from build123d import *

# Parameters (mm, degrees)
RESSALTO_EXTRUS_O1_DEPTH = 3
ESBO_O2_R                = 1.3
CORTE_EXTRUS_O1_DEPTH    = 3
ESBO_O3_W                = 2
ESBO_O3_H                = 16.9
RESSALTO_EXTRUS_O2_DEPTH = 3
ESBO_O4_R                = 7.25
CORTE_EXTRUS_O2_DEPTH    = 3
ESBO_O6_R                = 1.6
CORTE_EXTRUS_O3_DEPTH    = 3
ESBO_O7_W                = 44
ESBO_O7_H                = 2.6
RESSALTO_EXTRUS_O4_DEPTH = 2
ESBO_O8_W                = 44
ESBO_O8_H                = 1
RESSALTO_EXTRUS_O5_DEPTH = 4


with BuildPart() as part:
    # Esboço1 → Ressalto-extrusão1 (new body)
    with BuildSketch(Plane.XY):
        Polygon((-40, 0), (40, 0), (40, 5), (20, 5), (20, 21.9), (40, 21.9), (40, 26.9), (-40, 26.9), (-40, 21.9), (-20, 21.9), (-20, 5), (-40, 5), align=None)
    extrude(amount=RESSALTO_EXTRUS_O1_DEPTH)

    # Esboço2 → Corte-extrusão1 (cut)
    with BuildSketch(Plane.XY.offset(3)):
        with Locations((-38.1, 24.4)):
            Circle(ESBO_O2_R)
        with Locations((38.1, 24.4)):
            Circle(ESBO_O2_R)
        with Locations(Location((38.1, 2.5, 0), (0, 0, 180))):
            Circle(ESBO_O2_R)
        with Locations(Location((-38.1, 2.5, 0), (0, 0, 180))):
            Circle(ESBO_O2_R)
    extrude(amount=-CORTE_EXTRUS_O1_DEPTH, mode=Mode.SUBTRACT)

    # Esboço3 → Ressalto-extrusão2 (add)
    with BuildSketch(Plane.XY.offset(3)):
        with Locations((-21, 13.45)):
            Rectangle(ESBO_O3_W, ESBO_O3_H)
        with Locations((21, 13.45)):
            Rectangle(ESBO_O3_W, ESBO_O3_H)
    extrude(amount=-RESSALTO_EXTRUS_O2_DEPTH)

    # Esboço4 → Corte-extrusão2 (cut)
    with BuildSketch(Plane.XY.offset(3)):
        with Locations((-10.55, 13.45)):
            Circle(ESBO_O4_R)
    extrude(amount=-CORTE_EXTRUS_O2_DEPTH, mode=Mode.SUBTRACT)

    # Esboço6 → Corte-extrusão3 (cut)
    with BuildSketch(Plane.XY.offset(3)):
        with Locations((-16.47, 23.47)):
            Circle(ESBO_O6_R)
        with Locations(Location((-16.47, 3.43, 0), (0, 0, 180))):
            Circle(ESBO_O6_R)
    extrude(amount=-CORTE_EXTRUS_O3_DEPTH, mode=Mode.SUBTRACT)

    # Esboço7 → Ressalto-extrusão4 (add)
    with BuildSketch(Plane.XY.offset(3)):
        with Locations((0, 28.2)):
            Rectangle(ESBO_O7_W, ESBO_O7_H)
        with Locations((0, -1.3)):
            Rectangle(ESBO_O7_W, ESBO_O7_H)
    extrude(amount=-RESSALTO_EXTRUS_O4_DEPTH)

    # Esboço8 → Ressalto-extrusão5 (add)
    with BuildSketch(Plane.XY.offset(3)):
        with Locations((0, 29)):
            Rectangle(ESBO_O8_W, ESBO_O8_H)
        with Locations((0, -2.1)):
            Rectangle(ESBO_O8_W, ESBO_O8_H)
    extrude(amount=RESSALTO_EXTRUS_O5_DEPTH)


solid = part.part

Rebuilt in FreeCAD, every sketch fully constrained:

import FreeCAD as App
import Part
import Sketcher
Q = App.Units.Quantity

doc = App.newDocument("Part")
body = doc.addObject("PartDesign::Body", "Body")

sketch1 = doc.addObject("Sketcher::SketchObject", "Sketch")
body.addObject(sketch1)
sketch1.AttachmentSupport = (doc.XY_Plane, [""])
sketch1.MapMode = "FlatFace"
sketch1.addGeometry(Part.LineSegment(App.Vector(-40, 0, 0), App.Vector(40, 0, 0)), False)
sketch1.addGeometry(Part.LineSegment(App.Vector(40, 0, 0), App.Vector(40, 5, 0)), False)
sketch1.addGeometry(Part.LineSegment(App.Vector(40, 5, 0), App.Vector(20, 5, 0)), False)
sketch1.addGeometry(Part.LineSegment(App.Vector(20, 5, 0), App.Vector(20, 21.9, 0)), False)
sketch1.addGeometry(Part.LineSegment(App.Vector(20, 21.9, 0), App.Vector(40, 21.9, 0)), False)
sketch1.addGeometry(Part.LineSegment(App.Vector(40, 21.9, 0), App.Vector(40, 26.9, 0)), False)
sketch1.addGeometry(Part.LineSegment(App.Vector(40, 26.9, 0), App.Vector(-40, 26.9, 0)), False)
sketch1.addGeometry(Part.LineSegment(App.Vector(-40, 26.9, 0), App.Vector(-40, 21.9, 0)), False)
sketch1.addGeometry(Part.LineSegment(App.Vector(-40, 21.9, 0), App.Vector(-20, 21.9, 0)), False)
sketch1.addGeometry(Part.LineSegment(App.Vector(-20, 21.9, 0), App.Vector(-20, 5, 0)), False)
sketch1.addGeometry(Part.LineSegment(App.Vector(-20, 5, 0), App.Vector(-40, 5, 0)), False)
sketch1.addGeometry(Part.LineSegment(App.Vector(-40, 5, 0), App.Vector(-40, 0, 0)), False)
sketch1.addConstraint(Sketcher.Constraint("Coincident", 0, 2, 1, 1))
sketch1.addConstraint(Sketcher.Constraint("Coincident", 1, 2, 2, 1))
sketch1.addConstraint(Sketcher.Constraint("Coincident", 2, 2, 3, 1))
sketch1.addConstraint(Sketcher.Constraint("Coincident", 3, 2, 4, 1))
sketch1.addConstraint(Sketcher.Constraint("Coincident", 4, 2, 5, 1))
sketch1.addConstraint(Sketcher.Constraint("Coincident", 5, 2, 6, 1))
sketch1.addConstraint(Sketcher.Constraint("Coincident", 6, 2, 7, 1))
sketch1.addConstraint(Sketcher.Constraint("Coincident", 7, 2, 8, 1))
sketch1.addConstraint(Sketcher.Constraint("Coincident", 8, 2, 9, 1))
sketch1.addConstraint(Sketcher.Constraint("Coincident", 9, 2, 10, 1))
sketch1.addConstraint(Sketcher.Constraint("Coincident", 10, 2, 11, 1))
sketch1.addConstraint(Sketcher.Constraint("Coincident", 11, 2, 0, 1))
sketch1.addConstraint(Sketcher.Constraint("Horizontal", 0))
sketch1.addConstraint(Sketcher.Constraint("Vertical", 1))
sketch1.addConstraint(Sketcher.Constraint("Horizontal", 2))
sketch1.addConstraint(Sketcher.Constraint("Vertical", 3))
sketch1.addConstraint(Sketcher.Constraint("Horizontal", 4))
sketch1.addConstraint(Sketcher.Constraint("Vertical", 5))
sketch1.addConstraint(Sketcher.Constraint("Horizontal", 6))
sketch1.addConstraint(Sketcher.Constraint("Vertical", 7))
sketch1.addConstraint(Sketcher.Constraint("Horizontal", 8))
sketch1.addConstraint(Sketcher.Constraint("Vertical", 9))
sketch1.addConstraint(Sketcher.Constraint("Horizontal", 10))
sketch1.addConstraint(Sketcher.Constraint("Vertical", 11))
sketch1.addConstraint(Sketcher.Constraint("Symmetric", 0, 2, 11, 2, -1, 1))
sketch1.addConstraint(Sketcher.Constraint("Symmetric", 4, 2, 7, 2, -2))
sketch1.addConstraint(Sketcher.Constraint("Symmetric", 2, 2, 9, 2, -2))
sketch1.addConstraint(Sketcher.Constraint("Vertical", 1, 2, 4, 2))
sketch1.addConstraint(Sketcher.Constraint("Equal", 1, 5))
sketch1.addConstraint(Sketcher.Constraint("DistanceX", 0, 1, 0, 2, Q("80 mm")))
sketch1.addConstraint(Sketcher.Constraint("DistanceX", 2, 2, 2, 1, Q("20 mm")))
sketch1.addConstraint(Sketcher.Constraint("DistanceY", 1, 1, 1, 2, Q("5 mm")))
sketch1.addConstraint(Sketcher.Constraint("DistanceY", 3, 1, 3, 2, Q("16.9 mm")))
pad1 = doc.addObject("PartDesign::Pad", "Pad")
body.addObject(pad1)
pad1.Profile = sketch1
pad1.Length = 3

sketch2 = doc.addObject("Sketcher::SketchObject", "Sketch001")
body.addObject(sketch2)
sketch2.AttachmentSupport = (doc.XY_Plane, [""])
sketch2.MapMode = "FlatFace"
sketch2.AttachmentOffset = App.Placement(App.Vector(0, 0, 3), App.Rotation())
sketch2.addGeometry(Part.Circle(App.Vector(-38.1, 24.4, 0), App.Vector(0, 0, 1), 1.3), False)
sketch2.addGeometry(Part.Circle(App.Vector(38.1, 24.4, 0), App.Vector(0, 0, 1), 1.3), False)
sketch2.addGeometry(Part.Circle(App.Vector(38.1, 2.5, 0), App.Vector(0, 0, 1), 1.3), False)
sketch2.addGeometry(Part.Circle(App.Vector(-38.1, 2.5, 0), App.Vector(0, 0, 1), 1.3), False)
sketch2.addConstraint(Sketcher.Constraint("Equal", 0, 1))
sketch2.addConstraint(Sketcher.Constraint("Equal", 1, 2))
sketch2.addConstraint(Sketcher.Constraint("Equal", 2, 3))
sketch2.addConstraint(Sketcher.Constraint("Symmetric", 0, 3, 1, 3, -2))
sketch2.addConstraint(Sketcher.Constraint("Symmetric", 2, 3, 3, 3, -2))
sketch2.addConstraint(Sketcher.Constraint("Vertical", 1, 3, 2, 3))
sketch2.addConstraint(Sketcher.Constraint("Diameter", 0, Q("2.6 mm")))
sketch2.addConstraint(Sketcher.Constraint("DistanceX", 0, 3, -1, 1, Q("38.1 mm")))
sketch2.addConstraint(Sketcher.Constraint("DistanceY", -1, 1, 0, 3, Q("24.4 mm")))
sketch2.addConstraint(Sketcher.Constraint("DistanceY", -1, 1, 2, 3, Q("2.5 mm")))
pocket1 = doc.addObject("PartDesign::Pocket", "Pocket")
body.addObject(pocket1)
pocket1.Profile = sketch2
pocket1.Length = 3

sketch3 = doc.addObject("Sketcher::SketchObject", "Sketch002")
body.addObject(sketch3)
sketch3.AttachmentSupport = (doc.XY_Plane, [""])
sketch3.MapMode = "FlatFace"
sketch3.AttachmentOffset = App.Placement(App.Vector(0, 0, 3), App.Rotation())
sketch3.addGeometry(Part.LineSegment(App.Vector(-22, 21.9, 0), App.Vector(-22, 5, 0)), False)
sketch3.addGeometry(Part.LineSegment(App.Vector(-22, 5, 0), App.Vector(-20, 5, 0)), False)
sketch3.addGeometry(Part.LineSegment(App.Vector(-20, 5, 0), App.Vector(-20, 21.9, 0)), False)
sketch3.addGeometry(Part.LineSegment(App.Vector(-20, 21.9, 0), App.Vector(-22, 21.9, 0)), False)
sketch3.addGeometry(Part.LineSegment(App.Vector(20, 21.9, 0), App.Vector(20, 5, 0)), False)
sketch3.addGeometry(Part.LineSegment(App.Vector(20, 5, 0), App.Vector(22, 5, 0)), False)
sketch3.addGeometry(Part.LineSegment(App.Vector(22, 5, 0), App.Vector(22, 21.9, 0)), False)
sketch3.addGeometry(Part.LineSegment(App.Vector(22, 21.9, 0), App.Vector(20, 21.9, 0)), False)
sketch3.addConstraint(Sketcher.Constraint("Coincident", 0, 2, 1, 1))
sketch3.addConstraint(Sketcher.Constraint("Coincident", 1, 2, 2, 1))
sketch3.addConstraint(Sketcher.Constraint("Coincident", 2, 2, 3, 1))
sketch3.addConstraint(Sketcher.Constraint("Coincident", 3, 2, 0, 1))
sketch3.addConstraint(Sketcher.Constraint("Coincident", 4, 2, 5, 1))
sketch3.addConstraint(Sketcher.Constraint("Coincident", 5, 2, 6, 1))
sketch3.addConstraint(Sketcher.Constraint("Coincident", 6, 2, 7, 1))
sketch3.addConstraint(Sketcher.Constraint("Coincident", 7, 2, 4, 1))
sketch3.addConstraint(Sketcher.Constraint("Vertical", 0))
sketch3.addConstraint(Sketcher.Constraint("Horizontal", 1))
sketch3.addConstraint(Sketcher.Constraint("Vertical", 2))
sketch3.addConstraint(Sketcher.Constraint("Horizontal", 3))
sketch3.addConstraint(Sketcher.Constraint("Vertical", 4))
sketch3.addConstraint(Sketcher.Constraint("Horizontal", 5))
sketch3.addConstraint(Sketcher.Constraint("Vertical", 6))
sketch3.addConstraint(Sketcher.Constraint("Horizontal", 7))
sketch3.addConstraint(Sketcher.Constraint("Symmetric", 1, 2, 4, 2, -2))
sketch3.addConstraint(Sketcher.Constraint("Symmetric", 3, 2, 6, 2, -2))
sketch3.addConstraint(Sketcher.Constraint("DistanceX", 1, 1, 1, 2, Q("2 mm")))
sketch3.addConstraint(Sketcher.Constraint("DistanceY", 0, 2, 0, 1, Q("16.9 mm")))
sketch3.addConstraint(Sketcher.Constraint("DistanceX", 0, 2, -1, 1, Q("22 mm")))
sketch3.addConstraint(Sketcher.Constraint("DistanceY", -1, 1, 0, 2, Q("5 mm")))
pad2 = doc.addObject("PartDesign::Pad", "Pad001")
body.addObject(pad2)
pad2.Profile = sketch3
pad2.Length = 3
pad2.Reversed = True

sketch4 = doc.addObject("Sketcher::SketchObject", "Sketch003")
body.addObject(sketch4)
sketch4.AttachmentSupport = (doc.XY_Plane, [""])
sketch4.MapMode = "FlatFace"
sketch4.AttachmentOffset = App.Placement(App.Vector(0, 0, 3), App.Rotation())
sketch4.addGeometry(Part.Circle(App.Vector(-10.55, 13.45, 0), App.Vector(0, 0, 1), 7.25), False)
sketch4.addConstraint(Sketcher.Constraint("Diameter", 0, Q("14.5 mm")))
sketch4.addConstraint(Sketcher.Constraint("DistanceX", 0, 3, -1, 1, Q("10.55 mm")))
sketch4.addConstraint(Sketcher.Constraint("DistanceY", -1, 1, 0, 3, Q("13.45 mm")))
pocket2 = doc.addObject("PartDesign::Pocket", "Pocket001")
body.addObject(pocket2)
pocket2.Profile = sketch4
pocket2.Length = 3

sketch5 = doc.addObject("Sketcher::SketchObject", "Sketch004")
body.addObject(sketch5)
sketch5.AttachmentSupport = (doc.XY_Plane, [""])
sketch5.MapMode = "FlatFace"
sketch5.AttachmentOffset = App.Placement(App.Vector(0, 0, 3), App.Rotation())
sketch5.addGeometry(Part.Circle(App.Vector(-16.47, 23.47, 0), App.Vector(0, 0, 1), 1.6), False)
sketch5.addGeometry(Part.Circle(App.Vector(-16.47, 3.43, 0), App.Vector(0, 0, 1), 1.6), False)
sketch5.addConstraint(Sketcher.Constraint("Equal", 0, 1))
sketch5.addConstraint(Sketcher.Constraint("Vertical", 0, 3, 1, 3))
sketch5.addConstraint(Sketcher.Constraint("Diameter", 0, Q("3.2 mm")))
sketch5.addConstraint(Sketcher.Constraint("DistanceX", 0, 3, -1, 1, Q("16.47 mm")))
sketch5.addConstraint(Sketcher.Constraint("DistanceY", -1, 1, 0, 3, Q("23.47 mm")))
sketch5.addConstraint(Sketcher.Constraint("DistanceY", -1, 1, 1, 3, Q("3.43 mm")))
pocket3 = doc.addObject("PartDesign::Pocket", "Pocket002")
body.addObject(pocket3)
pocket3.Profile = sketch5
pocket3.Length = 3

sketch6 = doc.addObject("Sketcher::SketchObject", "Sketch005")
body.addObject(sketch6)
sketch6.AttachmentSupport = (doc.XY_Plane, [""])
sketch6.MapMode = "FlatFace"
sketch6.AttachmentOffset = App.Placement(App.Vector(0, 0, 3), App.Rotation())
sketch6.addGeometry(Part.LineSegment(App.Vector(-22, 29.5, 0), App.Vector(-22, 26.9, 0)), False)
sketch6.addGeometry(Part.LineSegment(App.Vector(-22, 26.9, 0), App.Vector(22, 26.9, 0)), False)
sketch6.addGeometry(Part.LineSegment(App.Vector(22, 26.9, 0), App.Vector(22, 29.5, 0)), False)
sketch6.addGeometry(Part.LineSegment(App.Vector(22, 29.5, 0), App.Vector(-22, 29.5, 0)), False)
sketch6.addGeometry(Part.LineSegment(App.Vector(-22, 0, 0), App.Vector(-22, -2.6, 0)), False)
sketch6.addGeometry(Part.LineSegment(App.Vector(-22, -2.6, 0), App.Vector(22, -2.6, 0)), False)
sketch6.addGeometry(Part.LineSegment(App.Vector(22, -2.6, 0), App.Vector(22, 0, 0)), False)
sketch6.addGeometry(Part.LineSegment(App.Vector(22, 0, 0), App.Vector(-22, 0, 0)), False)
sketch6.addConstraint(Sketcher.Constraint("Coincident", 0, 2, 1, 1))
sketch6.addConstraint(Sketcher.Constraint("Coincident", 1, 2, 2, 1))
sketch6.addConstraint(Sketcher.Constraint("Coincident", 2, 2, 3, 1))
sketch6.addConstraint(Sketcher.Constraint("Coincident", 3, 2, 0, 1))
sketch6.addConstraint(Sketcher.Constraint("Coincident", 4, 2, 5, 1))
sketch6.addConstraint(Sketcher.Constraint("Coincident", 5, 2, 6, 1))
sketch6.addConstraint(Sketcher.Constraint("Coincident", 6, 2, 7, 1))
sketch6.addConstraint(Sketcher.Constraint("Coincident", 7, 2, 4, 1))
sketch6.addConstraint(Sketcher.Constraint("Vertical", 0))
sketch6.addConstraint(Sketcher.Constraint("Horizontal", 1))
sketch6.addConstraint(Sketcher.Constraint("Vertical", 2))
sketch6.addConstraint(Sketcher.Constraint("Horizontal", 3))
sketch6.addConstraint(Sketcher.Constraint("Vertical", 4))
sketch6.addConstraint(Sketcher.Constraint("Horizontal", 5))
sketch6.addConstraint(Sketcher.Constraint("Vertical", 6))
sketch6.addConstraint(Sketcher.Constraint("Horizontal", 7))
sketch6.addConstraint(Sketcher.Constraint("Symmetric", 6, 2, 7, 2, -1, 1))
sketch6.addConstraint(Sketcher.Constraint("Vertical", 3, 2, 4, 2))
sketch6.addConstraint(Sketcher.Constraint("Vertical", 2, 2, 5, 2))
sketch6.addConstraint(Sketcher.Constraint("Equal", 2, 4))
sketch6.addConstraint(Sketcher.Constraint("DistanceX", 1, 1, 1, 2, Q("44 mm")))
sketch6.addConstraint(Sketcher.Constraint("DistanceY", 0, 2, 0, 1, Q("2.6 mm")))
sketch6.addConstraint(Sketcher.Constraint("DistanceY", -1, 1, 0, 2, Q("26.9 mm")))
pad3 = doc.addObject("PartDesign::Pad", "Pad002")
body.addObject(pad3)
pad3.Profile = sketch6
pad3.Length = 2
pad3.Reversed = True

sketch7 = doc.addObject("Sketcher::SketchObject", "Sketch006")
body.addObject(sketch7)
sketch7.AttachmentSupport = (doc.XY_Plane, [""])
sketch7.MapMode = "FlatFace"
sketch7.AttachmentOffset = App.Placement(App.Vector(0, 0, 3), App.Rotation())
sketch7.addGeometry(Part.LineSegment(App.Vector(-22, 29.5, 0), App.Vector(-22, 28.5, 0)), False)
sketch7.addGeometry(Part.LineSegment(App.Vector(-22, 28.5, 0), App.Vector(22, 28.5, 0)), False)
sketch7.addGeometry(Part.LineSegment(App.Vector(22, 28.5, 0), App.Vector(22, 29.5, 0)), False)
sketch7.addGeometry(Part.LineSegment(App.Vector(22, 29.5, 0), App.Vector(-22, 29.5, 0)), False)
sketch7.addGeometry(Part.LineSegment(App.Vector(-22, -1.6, 0), App.Vector(-22, -2.6, 0)), False)
sketch7.addGeometry(Part.LineSegment(App.Vector(-22, -2.6, 0), App.Vector(22, -2.6, 0)), False)
sketch7.addGeometry(Part.LineSegment(App.Vector(22, -2.6, 0), App.Vector(22, -1.6, 0)), False)
sketch7.addGeometry(Part.LineSegment(App.Vector(22, -1.6, 0), App.Vector(-22, -1.6, 0)), False)
sketch7.addConstraint(Sketcher.Constraint("Coincident", 0, 2, 1, 1))
sketch7.addConstraint(Sketcher.Constraint("Coincident", 1, 2, 2, 1))
sketch7.addConstraint(Sketcher.Constraint("Coincident", 2, 2, 3, 1))
sketch7.addConstraint(Sketcher.Constraint("Coincident", 3, 2, 0, 1))
sketch7.addConstraint(Sketcher.Constraint("Coincident", 4, 2, 5, 1))
sketch7.addConstraint(Sketcher.Constraint("Coincident", 5, 2, 6, 1))
sketch7.addConstraint(Sketcher.Constraint("Coincident", 6, 2, 7, 1))
sketch7.addConstraint(Sketcher.Constraint("Coincident", 7, 2, 4, 1))
sketch7.addConstraint(Sketcher.Constraint("Vertical", 0))
sketch7.addConstraint(Sketcher.Constraint("Horizontal", 1))
sketch7.addConstraint(Sketcher.Constraint("Vertical", 2))
sketch7.addConstraint(Sketcher.Constraint("Horizontal", 3))
sketch7.addConstraint(Sketcher.Constraint("Vertical", 4))
sketch7.addConstraint(Sketcher.Constraint("Horizontal", 5))
sketch7.addConstraint(Sketcher.Constraint("Vertical", 6))
sketch7.addConstraint(Sketcher.Constraint("Horizontal", 7))
sketch7.addConstraint(Sketcher.Constraint("Vertical", 3, 2, 4, 2))
sketch7.addConstraint(Sketcher.Constraint("Vertical", 2, 2, 5, 2))
sketch7.addConstraint(Sketcher.Constraint("Equal", 2, 4))
sketch7.addConstraint(Sketcher.Constraint("DistanceX", 1, 1, 1, 2, Q("44 mm")))
sketch7.addConstraint(Sketcher.Constraint("DistanceY", 0, 2, 0, 1, Q("1 mm")))
sketch7.addConstraint(Sketcher.Constraint("DistanceX", 0, 2, -1, 1, Q("22 mm")))
sketch7.addConstraint(Sketcher.Constraint("DistanceY", -1, 1, 0, 2, Q("28.5 mm")))
sketch7.addConstraint(Sketcher.Constraint("DistanceY", 4, 2, -1, 1, Q("2.6 mm")))
pad4 = doc.addObject("PartDesign::Pad", "Pad003")
body.addObject(pad4)
pad4.Profile = sketch7
pad4.Length = 4

doc.recompute()
